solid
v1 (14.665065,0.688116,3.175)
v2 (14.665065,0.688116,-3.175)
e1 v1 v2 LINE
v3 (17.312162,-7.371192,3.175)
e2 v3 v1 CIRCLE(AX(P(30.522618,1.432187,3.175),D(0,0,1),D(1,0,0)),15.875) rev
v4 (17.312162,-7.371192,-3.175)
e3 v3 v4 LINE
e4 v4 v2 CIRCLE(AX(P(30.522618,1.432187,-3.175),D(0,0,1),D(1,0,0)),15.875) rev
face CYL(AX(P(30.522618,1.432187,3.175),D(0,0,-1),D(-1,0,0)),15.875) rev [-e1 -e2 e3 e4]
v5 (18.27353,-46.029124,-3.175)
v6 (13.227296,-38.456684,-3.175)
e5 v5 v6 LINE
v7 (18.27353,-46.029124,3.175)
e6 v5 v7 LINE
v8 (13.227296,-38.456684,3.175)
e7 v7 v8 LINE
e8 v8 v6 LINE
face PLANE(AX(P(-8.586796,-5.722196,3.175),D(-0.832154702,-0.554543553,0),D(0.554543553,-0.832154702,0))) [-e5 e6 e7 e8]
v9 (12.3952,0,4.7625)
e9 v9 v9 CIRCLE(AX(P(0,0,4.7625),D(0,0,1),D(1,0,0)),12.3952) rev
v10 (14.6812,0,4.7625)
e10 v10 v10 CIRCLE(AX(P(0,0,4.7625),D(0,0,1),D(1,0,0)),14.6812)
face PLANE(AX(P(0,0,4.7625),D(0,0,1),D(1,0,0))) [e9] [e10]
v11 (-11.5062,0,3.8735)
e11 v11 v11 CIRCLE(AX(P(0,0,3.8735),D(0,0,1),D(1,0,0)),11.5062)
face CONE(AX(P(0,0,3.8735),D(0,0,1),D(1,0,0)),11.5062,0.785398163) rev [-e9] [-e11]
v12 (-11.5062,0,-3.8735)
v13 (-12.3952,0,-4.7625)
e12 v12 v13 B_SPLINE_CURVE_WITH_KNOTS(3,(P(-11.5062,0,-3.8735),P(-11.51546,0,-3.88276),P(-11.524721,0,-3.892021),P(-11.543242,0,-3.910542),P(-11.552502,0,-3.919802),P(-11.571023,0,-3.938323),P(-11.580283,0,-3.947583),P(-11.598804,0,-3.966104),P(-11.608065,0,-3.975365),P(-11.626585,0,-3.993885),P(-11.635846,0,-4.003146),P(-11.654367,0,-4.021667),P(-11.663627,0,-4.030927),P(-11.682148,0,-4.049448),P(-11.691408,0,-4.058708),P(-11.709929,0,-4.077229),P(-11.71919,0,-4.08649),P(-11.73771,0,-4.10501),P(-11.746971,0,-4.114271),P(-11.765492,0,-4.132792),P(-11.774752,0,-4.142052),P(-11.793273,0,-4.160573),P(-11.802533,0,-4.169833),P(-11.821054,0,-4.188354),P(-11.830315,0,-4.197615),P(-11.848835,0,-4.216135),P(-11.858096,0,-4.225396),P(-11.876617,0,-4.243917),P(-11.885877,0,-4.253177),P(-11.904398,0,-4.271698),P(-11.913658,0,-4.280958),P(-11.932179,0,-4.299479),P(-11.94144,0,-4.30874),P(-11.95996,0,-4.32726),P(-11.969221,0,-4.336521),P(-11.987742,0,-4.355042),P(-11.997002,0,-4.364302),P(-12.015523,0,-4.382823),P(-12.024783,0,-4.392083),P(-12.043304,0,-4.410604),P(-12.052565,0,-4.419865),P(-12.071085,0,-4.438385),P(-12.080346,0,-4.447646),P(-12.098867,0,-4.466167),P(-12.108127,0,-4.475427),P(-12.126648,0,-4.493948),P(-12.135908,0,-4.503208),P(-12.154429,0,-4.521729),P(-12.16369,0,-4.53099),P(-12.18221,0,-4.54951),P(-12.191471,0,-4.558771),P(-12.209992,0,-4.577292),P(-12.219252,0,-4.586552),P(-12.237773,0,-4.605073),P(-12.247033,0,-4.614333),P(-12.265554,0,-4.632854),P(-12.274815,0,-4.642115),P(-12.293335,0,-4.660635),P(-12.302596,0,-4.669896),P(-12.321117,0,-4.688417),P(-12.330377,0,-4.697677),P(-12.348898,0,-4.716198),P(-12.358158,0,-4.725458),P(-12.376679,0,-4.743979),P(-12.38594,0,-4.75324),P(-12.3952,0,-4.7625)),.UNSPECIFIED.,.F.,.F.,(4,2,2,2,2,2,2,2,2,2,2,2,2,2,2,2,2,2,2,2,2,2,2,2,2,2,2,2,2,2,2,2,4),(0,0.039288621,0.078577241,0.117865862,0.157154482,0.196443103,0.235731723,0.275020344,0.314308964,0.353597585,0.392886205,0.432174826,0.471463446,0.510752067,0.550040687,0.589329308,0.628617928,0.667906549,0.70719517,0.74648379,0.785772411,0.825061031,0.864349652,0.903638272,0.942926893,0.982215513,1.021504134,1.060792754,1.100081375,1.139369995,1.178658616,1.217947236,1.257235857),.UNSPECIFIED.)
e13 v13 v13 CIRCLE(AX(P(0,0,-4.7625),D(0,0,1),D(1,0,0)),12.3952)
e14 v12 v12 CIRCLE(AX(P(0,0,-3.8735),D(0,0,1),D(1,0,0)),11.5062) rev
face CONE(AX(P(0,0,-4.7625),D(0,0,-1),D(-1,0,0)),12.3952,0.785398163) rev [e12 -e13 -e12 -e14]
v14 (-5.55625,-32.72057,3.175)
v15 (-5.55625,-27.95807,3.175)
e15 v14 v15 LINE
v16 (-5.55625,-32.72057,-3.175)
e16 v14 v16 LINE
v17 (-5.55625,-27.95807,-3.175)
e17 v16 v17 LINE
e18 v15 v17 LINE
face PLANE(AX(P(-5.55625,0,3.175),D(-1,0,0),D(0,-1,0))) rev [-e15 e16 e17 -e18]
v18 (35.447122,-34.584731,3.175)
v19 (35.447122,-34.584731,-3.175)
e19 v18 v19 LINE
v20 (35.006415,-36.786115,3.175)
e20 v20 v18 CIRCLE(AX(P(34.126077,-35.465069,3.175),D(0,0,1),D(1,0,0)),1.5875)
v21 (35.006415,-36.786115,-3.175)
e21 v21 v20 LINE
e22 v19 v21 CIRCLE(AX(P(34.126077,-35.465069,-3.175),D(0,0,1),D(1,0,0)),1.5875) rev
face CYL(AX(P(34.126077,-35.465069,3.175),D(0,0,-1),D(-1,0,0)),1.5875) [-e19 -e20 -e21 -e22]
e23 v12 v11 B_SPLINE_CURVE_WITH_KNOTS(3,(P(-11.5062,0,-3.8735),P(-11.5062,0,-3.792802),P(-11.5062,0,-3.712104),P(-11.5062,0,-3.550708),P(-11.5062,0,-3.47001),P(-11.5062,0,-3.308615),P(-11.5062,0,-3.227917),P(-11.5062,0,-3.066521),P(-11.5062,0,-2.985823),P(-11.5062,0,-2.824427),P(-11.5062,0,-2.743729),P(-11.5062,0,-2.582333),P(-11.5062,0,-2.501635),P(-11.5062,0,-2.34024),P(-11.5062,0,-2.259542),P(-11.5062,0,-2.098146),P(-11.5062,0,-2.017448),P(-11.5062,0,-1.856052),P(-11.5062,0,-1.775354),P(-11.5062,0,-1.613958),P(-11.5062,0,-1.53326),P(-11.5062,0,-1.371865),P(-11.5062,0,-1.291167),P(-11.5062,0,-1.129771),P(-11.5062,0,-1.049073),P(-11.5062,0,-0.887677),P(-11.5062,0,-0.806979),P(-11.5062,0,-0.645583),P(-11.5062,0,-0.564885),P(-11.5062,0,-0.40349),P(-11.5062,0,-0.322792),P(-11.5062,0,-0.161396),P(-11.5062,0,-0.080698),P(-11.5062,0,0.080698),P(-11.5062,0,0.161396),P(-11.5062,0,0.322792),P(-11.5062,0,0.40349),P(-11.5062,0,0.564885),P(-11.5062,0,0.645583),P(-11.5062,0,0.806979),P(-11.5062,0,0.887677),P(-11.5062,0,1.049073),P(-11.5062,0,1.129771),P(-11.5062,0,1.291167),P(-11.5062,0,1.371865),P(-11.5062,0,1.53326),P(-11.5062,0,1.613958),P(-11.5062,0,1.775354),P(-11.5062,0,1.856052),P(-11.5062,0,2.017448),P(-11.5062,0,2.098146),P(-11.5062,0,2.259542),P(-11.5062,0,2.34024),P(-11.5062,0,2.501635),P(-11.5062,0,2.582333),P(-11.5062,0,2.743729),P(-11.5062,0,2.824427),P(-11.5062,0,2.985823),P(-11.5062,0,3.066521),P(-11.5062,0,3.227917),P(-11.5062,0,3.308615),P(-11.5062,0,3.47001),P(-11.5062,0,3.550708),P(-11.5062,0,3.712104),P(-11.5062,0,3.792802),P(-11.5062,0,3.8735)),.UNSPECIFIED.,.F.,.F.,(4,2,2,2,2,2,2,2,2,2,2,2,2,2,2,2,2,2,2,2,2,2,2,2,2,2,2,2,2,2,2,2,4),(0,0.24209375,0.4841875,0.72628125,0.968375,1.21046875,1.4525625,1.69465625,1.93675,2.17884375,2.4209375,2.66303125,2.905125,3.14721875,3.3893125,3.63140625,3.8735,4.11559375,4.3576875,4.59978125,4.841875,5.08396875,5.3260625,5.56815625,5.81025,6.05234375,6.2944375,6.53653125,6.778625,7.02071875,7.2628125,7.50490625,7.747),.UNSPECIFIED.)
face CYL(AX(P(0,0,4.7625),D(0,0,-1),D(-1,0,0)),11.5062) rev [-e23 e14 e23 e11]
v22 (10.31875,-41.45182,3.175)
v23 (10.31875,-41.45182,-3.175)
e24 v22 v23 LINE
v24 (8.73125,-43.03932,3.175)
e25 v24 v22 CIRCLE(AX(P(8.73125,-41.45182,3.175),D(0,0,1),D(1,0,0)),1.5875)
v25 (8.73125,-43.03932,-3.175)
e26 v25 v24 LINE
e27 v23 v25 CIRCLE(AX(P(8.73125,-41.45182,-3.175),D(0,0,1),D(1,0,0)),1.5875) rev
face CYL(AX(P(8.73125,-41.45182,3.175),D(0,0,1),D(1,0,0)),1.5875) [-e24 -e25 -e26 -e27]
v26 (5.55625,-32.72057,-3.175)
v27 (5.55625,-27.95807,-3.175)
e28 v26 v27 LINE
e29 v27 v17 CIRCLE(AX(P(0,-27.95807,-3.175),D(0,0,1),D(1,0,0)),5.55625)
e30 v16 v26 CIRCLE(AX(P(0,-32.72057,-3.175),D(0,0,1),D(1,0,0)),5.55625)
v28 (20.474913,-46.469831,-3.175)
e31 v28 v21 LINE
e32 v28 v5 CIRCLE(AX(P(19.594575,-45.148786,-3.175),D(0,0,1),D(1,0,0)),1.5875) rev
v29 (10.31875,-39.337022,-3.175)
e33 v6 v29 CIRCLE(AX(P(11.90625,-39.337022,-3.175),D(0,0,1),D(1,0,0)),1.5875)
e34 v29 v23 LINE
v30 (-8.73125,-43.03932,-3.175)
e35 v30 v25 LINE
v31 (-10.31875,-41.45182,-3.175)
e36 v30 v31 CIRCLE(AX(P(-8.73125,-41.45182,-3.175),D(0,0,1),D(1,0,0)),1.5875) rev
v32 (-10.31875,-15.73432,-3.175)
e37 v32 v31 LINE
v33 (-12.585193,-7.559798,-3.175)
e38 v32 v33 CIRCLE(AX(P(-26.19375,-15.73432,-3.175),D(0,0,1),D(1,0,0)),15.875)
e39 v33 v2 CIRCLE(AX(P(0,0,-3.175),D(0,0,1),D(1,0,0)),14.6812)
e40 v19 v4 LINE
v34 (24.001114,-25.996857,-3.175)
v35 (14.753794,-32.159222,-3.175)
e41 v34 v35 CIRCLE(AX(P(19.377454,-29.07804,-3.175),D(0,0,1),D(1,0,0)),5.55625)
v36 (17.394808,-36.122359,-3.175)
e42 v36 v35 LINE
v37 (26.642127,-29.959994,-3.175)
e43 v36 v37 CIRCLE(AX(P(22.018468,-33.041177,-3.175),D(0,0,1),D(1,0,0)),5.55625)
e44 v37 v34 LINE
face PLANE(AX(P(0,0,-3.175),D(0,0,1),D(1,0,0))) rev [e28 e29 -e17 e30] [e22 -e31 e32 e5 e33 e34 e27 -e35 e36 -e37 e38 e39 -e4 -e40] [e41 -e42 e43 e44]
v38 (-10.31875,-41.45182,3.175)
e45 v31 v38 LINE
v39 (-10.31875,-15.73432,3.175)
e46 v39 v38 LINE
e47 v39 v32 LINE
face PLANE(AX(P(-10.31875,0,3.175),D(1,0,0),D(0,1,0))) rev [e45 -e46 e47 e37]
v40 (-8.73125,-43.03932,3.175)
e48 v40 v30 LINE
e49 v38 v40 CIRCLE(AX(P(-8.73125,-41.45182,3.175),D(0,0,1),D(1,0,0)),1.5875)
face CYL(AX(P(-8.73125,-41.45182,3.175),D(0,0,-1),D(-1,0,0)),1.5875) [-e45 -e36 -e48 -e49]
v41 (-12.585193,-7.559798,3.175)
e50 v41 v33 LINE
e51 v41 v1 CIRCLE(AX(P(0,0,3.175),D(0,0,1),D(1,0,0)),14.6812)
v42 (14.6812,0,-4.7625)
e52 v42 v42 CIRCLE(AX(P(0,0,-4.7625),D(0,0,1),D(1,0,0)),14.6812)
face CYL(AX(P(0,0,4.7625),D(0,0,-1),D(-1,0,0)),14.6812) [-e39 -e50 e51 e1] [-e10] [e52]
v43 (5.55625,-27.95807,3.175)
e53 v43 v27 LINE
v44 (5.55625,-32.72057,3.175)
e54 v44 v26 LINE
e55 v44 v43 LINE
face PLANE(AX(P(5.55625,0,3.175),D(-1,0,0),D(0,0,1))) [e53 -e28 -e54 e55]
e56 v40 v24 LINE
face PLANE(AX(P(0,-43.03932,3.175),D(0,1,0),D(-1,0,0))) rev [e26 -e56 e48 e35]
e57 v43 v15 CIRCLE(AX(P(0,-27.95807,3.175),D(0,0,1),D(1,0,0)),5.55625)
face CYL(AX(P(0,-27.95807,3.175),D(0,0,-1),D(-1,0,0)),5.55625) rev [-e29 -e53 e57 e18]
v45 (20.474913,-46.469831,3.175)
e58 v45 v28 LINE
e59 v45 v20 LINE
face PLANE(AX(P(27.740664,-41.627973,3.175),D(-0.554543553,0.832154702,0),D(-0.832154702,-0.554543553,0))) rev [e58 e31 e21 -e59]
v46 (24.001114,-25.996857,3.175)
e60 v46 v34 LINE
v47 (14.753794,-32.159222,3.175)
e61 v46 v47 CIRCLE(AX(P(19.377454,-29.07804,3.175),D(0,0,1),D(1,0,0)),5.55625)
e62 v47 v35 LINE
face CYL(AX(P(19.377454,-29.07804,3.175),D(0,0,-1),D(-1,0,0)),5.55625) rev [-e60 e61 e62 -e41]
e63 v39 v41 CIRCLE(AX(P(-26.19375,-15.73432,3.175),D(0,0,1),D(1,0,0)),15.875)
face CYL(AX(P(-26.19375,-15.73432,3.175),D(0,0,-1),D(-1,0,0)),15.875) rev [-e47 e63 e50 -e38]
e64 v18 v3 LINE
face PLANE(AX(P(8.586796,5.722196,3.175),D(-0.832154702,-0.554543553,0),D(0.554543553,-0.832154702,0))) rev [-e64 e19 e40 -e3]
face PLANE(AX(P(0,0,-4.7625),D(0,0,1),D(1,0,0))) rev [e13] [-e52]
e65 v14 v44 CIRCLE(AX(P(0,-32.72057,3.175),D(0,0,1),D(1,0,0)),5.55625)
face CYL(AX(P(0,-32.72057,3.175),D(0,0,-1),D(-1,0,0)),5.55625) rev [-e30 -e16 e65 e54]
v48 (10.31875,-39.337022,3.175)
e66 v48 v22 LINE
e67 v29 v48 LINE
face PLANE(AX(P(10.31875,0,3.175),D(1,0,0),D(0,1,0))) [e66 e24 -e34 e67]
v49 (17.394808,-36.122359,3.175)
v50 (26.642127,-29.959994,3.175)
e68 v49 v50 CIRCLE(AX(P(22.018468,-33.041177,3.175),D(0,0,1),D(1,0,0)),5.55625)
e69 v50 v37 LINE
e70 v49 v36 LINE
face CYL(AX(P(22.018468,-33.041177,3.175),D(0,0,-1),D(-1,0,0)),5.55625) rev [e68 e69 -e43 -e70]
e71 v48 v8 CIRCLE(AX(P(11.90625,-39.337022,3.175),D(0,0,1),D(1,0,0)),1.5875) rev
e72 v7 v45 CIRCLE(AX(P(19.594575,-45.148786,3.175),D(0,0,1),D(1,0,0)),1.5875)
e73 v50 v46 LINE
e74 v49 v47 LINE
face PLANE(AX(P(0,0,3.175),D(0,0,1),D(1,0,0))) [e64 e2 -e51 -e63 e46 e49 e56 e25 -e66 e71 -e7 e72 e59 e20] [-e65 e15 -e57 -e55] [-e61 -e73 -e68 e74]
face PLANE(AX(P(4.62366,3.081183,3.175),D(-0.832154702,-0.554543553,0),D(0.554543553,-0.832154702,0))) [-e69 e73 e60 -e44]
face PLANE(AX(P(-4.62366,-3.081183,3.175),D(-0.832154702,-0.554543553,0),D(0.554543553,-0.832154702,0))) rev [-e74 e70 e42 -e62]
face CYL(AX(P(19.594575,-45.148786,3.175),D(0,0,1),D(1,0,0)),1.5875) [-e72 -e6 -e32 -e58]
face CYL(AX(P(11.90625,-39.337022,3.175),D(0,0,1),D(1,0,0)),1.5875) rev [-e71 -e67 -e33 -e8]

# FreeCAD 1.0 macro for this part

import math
import FreeCAD as App
import Part
import Sketcher

V = App.Vector
Q = App.Units.Quantity


def edges_at(feature, points):
    """Names of the edges that pass closest to the given points."""
    edges = feature.Shape.Edges
    near = lambda p: min(range(len(edges)), key=lambda i: edges[i].distToShape(Part.Vertex(*p))[0])
    return sorted({f"Edge{near(p) + 1}" for p in points})

doc = App.newDocument("Part")
params = doc.addObject("Spreadsheet::Sheet", "Params")
for row, (alias, value) in enumerate([
    ("sketch1_diameter", "0.906 in"),
    ("sketch1_radius", "0.578 in"),
    ("pad1_length", "0.375 in"),
    ("sketch2_radius", "0.625 in"),
    ("sketch2_radius2", "0.578 in"),
    ("sketch2_radius3", "0.21875 in"),
    ("sketch2_length", "1.35 in"),
    ("sketch2_width", "0.8125 in"),
    ("pad2_length", "0.25 in"),
    ("fillet_radius", "0.0625 in"),
    ("chamfer_size", "0.035 in"),
], start=1):
    params.set(f"A{row}", alias)
    params.set(f"B{row}", "=" + value)
    params.setAlias(f"B{row}", alias)

body = doc.addObject("PartDesign::Body", "Body")

# Sketch on XY plane
sketch1 = body.newObject("Sketcher::SketchObject", "Sketch")
sketch1.AttachmentSupport = (doc.getObject("XY_Plane"), [""])
sketch1.MapMode = "FlatFace"
sketch1.addGeometry([
    Part.ArcOfCircle(Part.Circle(V(0, 0, 0), V(0, 0, 1), 15), math.radians(3), math.radians(211)),
    Part.ArcOfCircle(Part.Circle(V(0, 0, 0), V(0, 0, 1), 15), math.radians(-149), math.radians(3)),
    Part.Circle(V(0, 0, 0), V(0, 0, 1), 12),
], False)
sketch1.addConstraint([
    Sketcher.Constraint("Tangent", 0, 1, 1, 2),
    Sketcher.Constraint("Coincident", 1, 1, 0, 2),
    Sketcher.Constraint("Coincident", 0, 3, -1, 1),
    Sketcher.Constraint("Coincident", 2, 3, -1, 1),
    Sketcher.Constraint("Diameter", 2, Q("0.906 in")),
    Sketcher.Constraint("Radius", 0, Q("0.578 in")),
    Sketcher.Constraint("DistanceX", 1, 1, 0, 1, Q("27.250258 mm")),
    Sketcher.Constraint("DistanceX", -1, 1, 0, 1, Q("14.665065 mm")),
])
sketch1.setExpression("Constraints[4]", "Params.sketch1_diameter")
sketch1.setExpression("Constraints[5]", "Params.sketch1_radius")
pad1 = body.newObject("PartDesign::Pad", "Pad")
pad1.Profile = sketch1
pad1.setExpression("Length", "Params.pad1_length")
pad1.Midplane = True

# Sketch on XY plane
sketch2 = body.newObject("Sketcher::SketchObject", "Sketch001")
sketch2.AttachmentSupport = (doc.getObject("XY_Plane"), [""])
sketch2.MapMode = "FlatFace"
sketch2.addGeometry([
    Part.ArcOfCircle(Part.Circle(V(-26.2, -15.7, 0), V(0, 0, 1), 15.9), math.radians(0), math.radians(31)),  # 0
    Part.LineSegment(V(-10.3, -15.7, 0), V(-10.3, -43, 0)),  # 1
    Part.LineSegment(V(-10.3, -43, 0), V(10.3, -43, 0)),  # 2
    Part.LineSegment(V(10.3, -43, 0), V(10.3, -34.1, 0)),  # 3
    Part.LineSegment(V(10.3, -34.1, 0), V(19.2, -47.4, 0)),  # 4
    Part.LineSegment(V(19.2, -47.4, 0), V(36.3, -35.9, 0)),  # 5
    Part.LineSegment(V(36.3, -35.9, 0), V(17.3, -7.4, 0)),  # 6
    Part.ArcOfCircle(Part.Circle(V(30.5, 1.4, 0), V(0, 0, 1), 15.9), math.radians(-177), math.radians(-146)),  # 7
    Part.ArcOfCircle(Part.Circle(V(0, 0, 0), V(0, 0, 1), 14.7), math.radians(-149), math.radians(3)),  # 8
    Part.LineSegment(V(24, -26, 0), V(26.6, -30, 0)),  # 9
    Part.ArcOfCircle(Part.Circle(V(22, -33, 0), V(0, 0, 1), 5.6), math.radians(-146), math.radians(34)),  # 10
    Part.LineSegment(V(17.4, -36.1, 0), V(14.8, -32.2, 0)),  # 11
    Part.ArcOfCircle(Part.Circle(V(19.4, -29.1, 0), V(0, 0, 1), 5.6), math.radians(34), math.radians(214)),  # 12
    Part.LineSegment(V(5.6, -28, 0), V(5.6, -32.7, 0)),  # 13
    Part.ArcOfCircle(Part.Circle(V(0, -32.7, 0), V(0, 0, 1), 5.6), math.radians(180), math.radians(360)),  # 14
    Part.LineSegment(V(-5.6, -32.7, 0), V(-5.6, -28, 0)),  # 15
    Part.ArcOfCircle(Part.Circle(V(0, -28, 0), V(0, 0, 1), 5.6), math.radians(0), math.radians(180)),  # 16
], False)
sketch2.addConstraint([
    Sketcher.Constraint("Tangent", 0, 1, 1, 1),
    Sketcher.Constraint("Coincident", 1, 2, 2, 1),
    Sketcher.Constraint("Coincident", 2, 2, 3, 1),
    Sketcher.Constraint("Coincident", 3, 2, 4, 1),
    Sketcher.Constraint("Coincident", 4, 2, 5, 1),
    Sketcher.Constraint("Coincident", 5, 2, 6, 1),
    Sketcher.Constraint("Tangent", 6, 2, 7, 2),
    Sketcher.Constraint("Tangent", 7, 1, 8, 2),
    Sketcher.Constraint("Tangent", 8, 1, 0, 2),
    Sketcher.Constraint("Tangent", 9, 2, 10, 2),
    Sketcher.Constraint("Tangent", 10, 1, 11, 1),
    Sketcher.Constraint("Tangent", 11, 2, 12, 2),
    Sketcher.Constraint("Tangent", 12, 1, 9, 1),
    Sketcher.Constraint("Tangent", 13, 2, 14, 2),
    Sketcher.Constraint("Tangent", 14, 1, 15, 1),
    Sketcher.Constraint("Tangent", 15, 2, 16, 2),
    Sketcher.Constraint("Tangent", 16, 1, 13, 1),
    Sketcher.Constraint("Vertical", 1),
    Sketcher.Constraint("Horizontal", 2),
    Sketcher.Constraint("Vertical", 3),
    Sketcher.Constraint("Vertical", 13),
    Sketcher.Constraint("Vertical", 15),
    Sketcher.Constraint("Coincident", 8, 3, -1, 1),
    Sketcher.Constraint("Equal", 0, 7),
    Sketcher.Constraint("Equal", 10, 12),
    Sketcher.Constraint("Equal", 12, 14),
    Sketcher.Constraint("PointOnObject", 14, 3, -2),
    Sketcher.Constraint("Perpendicular", 4, 5),
    Sketcher.Constraint("Perpendicular", 5, 6),
    Sketcher.Constraint("Parallel", 6, 9),
    Sketcher.Constraint("Radius", 0, Q("0.625 in")),
    Sketcher.Constraint("Radius", 8, Q("0.578 in")),
    Sketcher.Constraint("Radius", 10, Q("0.21875 in")),
    Sketcher.Constraint("Distance", 6, Q("1.35 in")),
    Sketcher.Constraint("DistanceX", 2, 1, 2, 2, Q("0.8125 in")),
    Sketcher.Constraint("DistanceY", 1, 2, 1, 1, Q("1.075 in")),
    Sketcher.Constraint("DistanceY", 13, 2, 13, 1, Q("0.1875 in")),
    Sketcher.Constraint("Distance", 5, Q("0.8125 in")),
    Sketcher.Constraint("Distance", 9, Q("0.1875 in")),
    Sketcher.Constraint("DistanceX", 0, 3, -1, 1, Q("1.03125 in")),
    Sketcher.Constraint("DistanceY", 1, 2, 14, 3, Q("0.40625 in")),
    Sketcher.Constraint("DistanceX", 4, 2, 10, 3, Q("2.8646 mm")),
    Sketcher.Constraint("DistanceY", 4, 2, 14, 3, Q("14.629599 mm")),
    Sketcher.Constraint("DistanceY", 5, 2, 10, 3, Q("2.8646 mm")),
    Sketcher.Constraint("DistanceY", 10, 1, 12, 1, Q("10.125502 mm")),
])
sketch2.setExpression("Constraints[30]", "Params.sketch2_radius")
sketch2.setExpression("Constraints[31]", "Params.sketch2_radius2")
sketch2.setExpression("Constraints[32]", "Params.sketch2_radius3")
sketch2.setExpression("Constraints[33]", "Params.sketch2_length")
sketch2.setExpression("Constraints[34]", "Params.sketch2_width")
pad2 = body.newObject("PartDesign::Pad", "Pad001")
pad2.Profile = sketch2
pad2.setExpression("Length", "Params.pad2_length")
pad2.Midplane = True
doc.recompute()

fillet = body.newObject("PartDesign::Fillet", "Fillet")
fillet.Base = (pad2, edges_at(pad2, [
    (-10.319, -43.039, 0),
    (10.319, -43.039, 0),
    (10.319, -34.092, 0),
    (19.154, -47.35, 0),
    (36.327, -35.906, 0),
]))
fillet.setExpression("Radius", "Params.fillet_radius")
doc.recompute()

chamfer = body.newObject("PartDesign::Chamfer", "Chamfer")
chamfer.Base = (fillet, edges_at(fillet, [(11.506, 0, -4.763), (11.506, 0, 4.763)]))
chamfer.setExpression("Size", "Params.chamfer_size")

doc.recompute()
